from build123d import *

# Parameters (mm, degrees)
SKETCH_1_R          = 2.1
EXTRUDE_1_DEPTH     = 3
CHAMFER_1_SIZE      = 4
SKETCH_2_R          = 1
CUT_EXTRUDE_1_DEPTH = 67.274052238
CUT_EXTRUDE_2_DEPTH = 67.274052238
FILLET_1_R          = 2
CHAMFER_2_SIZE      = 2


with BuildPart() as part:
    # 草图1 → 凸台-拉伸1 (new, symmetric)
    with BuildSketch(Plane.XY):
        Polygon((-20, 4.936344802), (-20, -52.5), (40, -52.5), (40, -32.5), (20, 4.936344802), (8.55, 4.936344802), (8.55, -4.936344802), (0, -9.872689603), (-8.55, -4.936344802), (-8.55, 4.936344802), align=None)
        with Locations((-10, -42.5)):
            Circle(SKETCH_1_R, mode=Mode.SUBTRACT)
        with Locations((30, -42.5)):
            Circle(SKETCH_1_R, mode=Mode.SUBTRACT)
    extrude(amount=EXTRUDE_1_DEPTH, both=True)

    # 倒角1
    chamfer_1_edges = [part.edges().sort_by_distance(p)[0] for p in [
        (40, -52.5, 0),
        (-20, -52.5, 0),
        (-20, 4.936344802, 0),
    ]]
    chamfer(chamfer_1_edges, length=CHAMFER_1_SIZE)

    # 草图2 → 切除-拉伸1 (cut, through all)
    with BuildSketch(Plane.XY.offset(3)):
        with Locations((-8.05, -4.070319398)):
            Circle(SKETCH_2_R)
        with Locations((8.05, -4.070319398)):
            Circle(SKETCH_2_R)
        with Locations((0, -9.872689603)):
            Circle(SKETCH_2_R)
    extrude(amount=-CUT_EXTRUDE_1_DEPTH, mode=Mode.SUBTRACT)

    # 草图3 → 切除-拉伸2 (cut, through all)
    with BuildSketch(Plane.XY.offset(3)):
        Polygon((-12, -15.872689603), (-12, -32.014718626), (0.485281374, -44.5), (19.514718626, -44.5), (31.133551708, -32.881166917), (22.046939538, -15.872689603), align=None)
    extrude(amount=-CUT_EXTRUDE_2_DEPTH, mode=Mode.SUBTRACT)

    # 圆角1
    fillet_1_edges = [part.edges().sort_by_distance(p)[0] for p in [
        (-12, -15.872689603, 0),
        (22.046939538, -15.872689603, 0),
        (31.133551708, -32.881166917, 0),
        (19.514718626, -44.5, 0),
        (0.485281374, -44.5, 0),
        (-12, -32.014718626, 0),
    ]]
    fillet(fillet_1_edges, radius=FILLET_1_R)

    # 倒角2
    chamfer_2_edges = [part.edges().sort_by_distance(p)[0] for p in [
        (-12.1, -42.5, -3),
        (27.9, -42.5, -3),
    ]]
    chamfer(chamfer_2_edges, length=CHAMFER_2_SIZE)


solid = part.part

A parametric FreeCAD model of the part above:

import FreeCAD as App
import Part
import Sketcher

V = App.Vector
Q = App.Units.Quantity


def edges_at(feature, points):
    """Names of the edges that pass closest to the given points."""
    edges = feature.Shape.Edges
    near = lambda p: min(range(len(edges)), key=lambda i: edges[i].distToShape(Part.Vertex(*p))[0])
    return sorted({f"Edge{near(p) + 1}" for p in points})

doc = App.newDocument("Part")
params = doc.addObject("Spreadsheet::Sheet", "Params")
for row, (alias, value) in enumerate([
    ("sketch1_diameter", "4.2 mm"),
    ("sketch1_width", "60 mm"),
    ("sketch1_height", "20 mm"),
    ("sketch1_width2", "11.45 mm"),
    ("pad1_length", "6 mm"),
    ("chamfer_size", "4 mm"),
    ("sketch2_diameter", "2 mm"),
    ("fillet_radius", "2 mm"),
    ("chamfer2_size", "2 mm"),
], start=1):
    params.set(f"A{row}", alias)
    params.set(f"B{row}", "=" + value)
    params.setAlias(f"B{row}", alias)

body = doc.addObject("PartDesign::Body", "Body")

# Sketch on XY plane
sketch1 = doc.addObject("Sketcher::SketchObject", "Sketch")
body.addObject(sketch1)
sketch1.AttachmentSupport = (doc.XY_Plane, [""])
sketch1.MapMode = "FlatFace"
sketch1.addGeometry(Part.LineSegment(V(-20, 4.936345, 0), V(-20, -52.5, 0)), False)
sketch1.addGeometry(Part.LineSegment(V(-20, -52.5, 0), V(40, -52.5, 0)), False)
sketch1.addGeometry(Part.LineSegment(V(40, -52.5, 0), V(40, -32.5, 0)), False)
sketch1.addGeometry(Part.LineSegment(V(40, -32.5, 0), V(20, 4.936345, 0)), False)
sketch1.addGeometry(Part.LineSegment(V(20, 4.936345, 0), V(8.55, 4.936345, 0)), False)
sketch1.addGeometry(Part.LineSegment(V(8.55, 4.936345, 0), V(8.55, -4.936345, 0)), False)
sketch1.addGeometry(Part.LineSegment(V(8.55, -4.936345, 0), V(0, -9.87269, 0)), False)
sketch1.addGeometry(Part.LineSegment(V(0, -9.87269, 0), V(-8.55, -4.936345, 0)), False)
sketch1.addGeometry(Part.LineSegment(V(-8.55, -4.936345, 0), V(-8.55, 4.936345, 0)), False)
sketch1.addGeometry(Part.LineSegment(V(-8.55, 4.936345, 0), V(-20, 4.936345, 0)), False)
sketch1.addGeometry(Part.Circle(V(-10, -42.5, 0), V(0, 0, 1), 2.1), False)
sketch1.addGeometry(Part.Circle(V(30, -42.5, 0), V(0, 0, 1), 2.1), False)
sketch1.addConstraint(Sketcher.Constraint("Coincident", 0, 2, 1, 1))
sketch1.addConstraint(Sketcher.Constraint("Coincident", 1, 2, 2, 1))
sketch1.addConstraint(Sketcher.Constraint("Coincident", 2, 2, 3, 1))
sketch1.addConstraint(Sketcher.Constraint("Coincident", 3, 2, 4, 1))
sketch1.addConstraint(Sketcher.Constraint("Coincident", 4, 2, 5, 1))
sketch1.addConstraint(Sketcher.Constraint("Coincident", 5, 2, 6, 1))
sketch1.addConstraint(Sketcher.Constraint("Coincident", 6, 2, 7, 1))
sketch1.addConstraint(Sketcher.Constraint("Coincident", 7, 2, 8, 1))
sketch1.addConstraint(Sketcher.Constraint("Coincident", 8, 2, 9, 1))
sketch1.addConstraint(Sketcher.Constraint("Coincident", 9, 2, 0, 1))
sketch1.addConstraint(Sketcher.Constraint("Vertical", 0))
sketch1.addConstraint(Sketcher.Constraint("Horizontal", 1))
sketch1.addConstraint(Sketcher.Constraint("Vertical", 2))
sketch1.addConstraint(Sketcher.Constraint("Horizontal", 4))
sketch1.addConstraint(Sketcher.Constraint("Vertical", 5))
sketch1.addConstraint(Sketcher.Constraint("Vertical", 8))
sketch1.addConstraint(Sketcher.Constraint("Horizontal", 9))
sketch1.addConstraint(Sketcher.Constraint("Equal", 10, 11))
sketch1.addConstraint(Sketcher.Constraint("Symmetric", 4, 2, 7, 2, -1, 1))
sketch1.addConstraint(Sketcher.Constraint("Symmetric", 3, 2, 9, 2, -2))
sketch1.addConstraint(Sketcher.Constraint("PointOnObject", 6, 2, -2))
sketch1.addConstraint(Sketcher.Constraint("Horizontal", 10, 3, 11, 3))
sketch1.addConstraint(Sketcher.Constraint("Horizontal", 5, 2, 7, 2))
sketch1.addConstraint(Sketcher.Constraint("Diameter", 10, Q("4.2 mm")))
sketch1.addConstraint(Sketcher.Constraint("DistanceX", 1, 1, 1, 2, Q("60 mm")))
sketch1.addConstraint(Sketcher.Constraint("DistanceY", 2, 1, 2, 2, Q("20 mm")))
sketch1.addConstraint(Sketcher.Constraint("Angle", 6, Q("-150 deg")))
sketch1.addConstraint(Sketcher.Constraint("DistanceX", 10, 3, -1, 1, Q("10 mm")))
sketch1.addConstraint(Sketcher.Constraint("DistanceX", -1, 1, 11, 3, Q("30 mm")))
sketch1.addConstraint(Sketcher.Constraint("DistanceX", 0, 2, -1, 1, Q("20 mm")))
sketch1.addConstraint(Sketcher.Constraint("DistanceY", 0, 2, 10, 3, Q("10 mm")))
sketch1.addConstraint(Sketcher.Constraint("DistanceX", 4, 2, 4, 1, Q("11.45 mm")))
sketch1.addConstraint(Sketcher.Constraint("DistanceY", 10, 3, -1, 1, Q("42.5 mm")))
sketch1.addConstraint(Sketcher.Constraint("DistanceY", 5, 2, 5, 1, Q("9.87269 mm")))
sketch1.setExpression("Constraints[23]", "Params.sketch1_diameter")
sketch1.setExpression("Constraints[24]", "Params.sketch1_width")
sketch1.setExpression("Constraints[25]", "Params.sketch1_height")
sketch1.setExpression("Constraints[31]", "Params.sketch1_width2")
pad1 = doc.addObject("PartDesign::Pad", "Pad")
body.addObject(pad1)
pad1.Profile = sketch1
pad1.setExpression("Length", "Params.pad1_length")
pad1.Midplane = True
doc.recompute()

chamfer = doc.addObject("PartDesign::Chamfer", "Chamfer")
body.addObject(chamfer)
chamfer.Base = (pad1, edges_at(pad1, [(40, -52.5, 0), (-20, -52.5, 0), (-20, 4.936, 0)]))
chamfer.setExpression("Size", "Params.chamfer_size")

# Sketch on XY plane
sketch2 = doc.addObject("Sketcher::SketchObject", "Sketch001")
body.addObject(sketch2)
sketch2.AttachmentSupport = (doc.XY_Plane, [""])
sketch2.MapMode = "FlatFace"
sketch2.AttachmentOffset = App.Placement(V(0, 0, 3), App.Rotation())
sketch2.addGeometry(Part.Circle(V(-8.05, -4.070319, 0), V(0, 0, 1), 1), False)
sketch2.addGeometry(Part.Circle(V(8.05, -4.070319, 0), V(0, 0, 1), 1), False)
sketch2.addGeometry(Part.Circle(V(0, -9.87269, 0), V(0, 0, 1), 1), False)
sketch2.addConstraint(Sketcher.Constraint("Equal", 0, 1))
sketch2.addConstraint(Sketcher.Constraint("Equal", 1, 2))
sketch2.addConstraint(Sketcher.Constraint("Symmetric", 0, 3, 1, 3, -2))
sketch2.addConstraint(Sketcher.Constraint("PointOnObject", 2, 3, -2))
sketch2.addConstraint(Sketcher.Constraint("Diameter", 0, Q("2 mm")))
sketch2.addConstraint(Sketcher.Constraint("DistanceX", 0, 3, 1, 3, Q("16.1 mm")))
sketch2.addConstraint(Sketcher.Constraint("DistanceY", 0, 3, -1, 1, Q("4.070319 mm")))
sketch2.addConstraint(Sketcher.Constraint("DistanceY", 2, 3, -1, 1, Q("9.87269 mm")))
sketch2.setExpression("Constraints[4]", "Params.sketch2_diameter")
pocket1 = doc.addObject("PartDesign::Pocket", "Pocket")
body.addObject(pocket1)
pocket1.Profile = sketch2
pocket1.Type = "ThroughAll"

# Sketch on XY plane
sketch3 = doc.addObject("Sketcher::SketchObject", "Sketch002")
body.addObject(sketch3)
sketch3.AttachmentSupport = (doc.XY_Plane, [""])
sketch3.MapMode = "FlatFace"
sketch3.AttachmentOffset = App.Placement(V(0, 0, 3), App.Rotation())
sketch3.addGeometry(Part.LineSegment(V(-12, -15.87269, 0), V(-12, -32.014719, 0)), False)
sketch3.addGeometry(Part.LineSegment(V(-12, -32.014719, 0), V(0.485281, -44.5, 0)), False)
sketch3.addGeometry(Part.LineSegment(V(0.485281, -44.5, 0), V(19.514719, -44.5, 0)), False)
sketch3.addGeometry(Part.LineSegment(V(19.514719, -44.5, 0), V(31.133552, -32.881167, 0)), False)
sketch3.addGeometry(Part.LineSegment(V(31.133552, -32.881167, 0), V(22.04694, -15.87269, 0)), False)
sketch3.addGeometry(Part.LineSegment(V(22.04694, -15.87269, 0), V(-12, -15.87269, 0)), False)
sketch3.addConstraint(Sketcher.Constraint("Coincident", 0, 2, 1, 1))
sketch3.addConstraint(Sketcher.Constraint("Coincident", 1, 2, 2, 1))
sketch3.addConstraint(Sketcher.Constraint("Coincident", 2, 2, 3, 1))
sketch3.addConstraint(Sketcher.Constraint("Coincident", 3, 2, 4, 1))
sketch3.addConstraint(Sketcher.Constraint("Coincident", 4, 2, 5, 1))
sketch3.addConstraint(Sketcher.Constraint("Coincident", 5, 2, 0, 1))
sketch3.addConstraint(Sketcher.Constraint("Vertical", 0))
sketch3.addConstraint(Sketcher.Constraint("Horizontal", 2))
sketch3.addConstraint(Sketcher.Constraint("Horizontal", 5))
sketch3.addConstraint(Sketcher.Constraint("Perpendicular", 1, 3))
sketch3.addConstraint(Sketcher.Constraint("Angle", 1, Q("-45 deg")))
sketch3.addConstraint(Sketcher.Constraint("DistanceX", 0, 2, -1, 1, Q("12 mm")))
sketch3.addConstraint(Sketcher.Constraint("DistanceY", 1, 2, -1, 1, Q("44.5 mm")))
sketch3.addConstraint(Sketcher.Constraint("DistanceX", 5, 2, 5, 1, Q("34.04694 mm")))
sketch3.addConstraint(Sketcher.Constraint("DistanceY", 0, 2, 0, 1, Q("16.142029 mm")))
sketch3.addConstraint(Sketcher.Constraint("Distance", 3, Q("16.431511 mm")))
sketch3.addConstraint(Sketcher.Constraint("DistanceX", 2, 1, 2, 2, Q("19.029437 mm")))
sketch3.addConstraint(Sketcher.Constraint("DistanceY", 0, 2, -1, 1, Q("32.014719 mm")))
pocket2 = doc.addObject("PartDesign::Pocket", "Pocket001")
body.addObject(pocket2)
pocket2.Profile = sketch3
pocket2.Type = "ThroughAll"
doc.recompute()

fillet = doc.addObject("PartDesign::Fillet", "Fillet")
body.addObject(fillet)
fillet.Base = (pocket2, edges_at(pocket2, [
    (-12, -15.873, 0),
    (22.047, -15.873, 0),
    (31.134, -32.881, 0),
    (19.515, -44.5, 0),
    (0.485, -44.5, 0),
    (-12, -32.015, 0),
]))
fillet.setExpression("Radius", "Params.fillet_radius")
doc.recompute()

chamfer2 = doc.addObject("PartDesign::Chamfer", "Chamfer001")
body.addObject(chamfer2)
chamfer2.Base = (fillet, edges_at(fillet, [(-12.1, -42.5, -3), (27.9, -42.5, -3)]))
chamfer2.setExpression("Size", "Params.chamfer2_size")

doc.recompute()
